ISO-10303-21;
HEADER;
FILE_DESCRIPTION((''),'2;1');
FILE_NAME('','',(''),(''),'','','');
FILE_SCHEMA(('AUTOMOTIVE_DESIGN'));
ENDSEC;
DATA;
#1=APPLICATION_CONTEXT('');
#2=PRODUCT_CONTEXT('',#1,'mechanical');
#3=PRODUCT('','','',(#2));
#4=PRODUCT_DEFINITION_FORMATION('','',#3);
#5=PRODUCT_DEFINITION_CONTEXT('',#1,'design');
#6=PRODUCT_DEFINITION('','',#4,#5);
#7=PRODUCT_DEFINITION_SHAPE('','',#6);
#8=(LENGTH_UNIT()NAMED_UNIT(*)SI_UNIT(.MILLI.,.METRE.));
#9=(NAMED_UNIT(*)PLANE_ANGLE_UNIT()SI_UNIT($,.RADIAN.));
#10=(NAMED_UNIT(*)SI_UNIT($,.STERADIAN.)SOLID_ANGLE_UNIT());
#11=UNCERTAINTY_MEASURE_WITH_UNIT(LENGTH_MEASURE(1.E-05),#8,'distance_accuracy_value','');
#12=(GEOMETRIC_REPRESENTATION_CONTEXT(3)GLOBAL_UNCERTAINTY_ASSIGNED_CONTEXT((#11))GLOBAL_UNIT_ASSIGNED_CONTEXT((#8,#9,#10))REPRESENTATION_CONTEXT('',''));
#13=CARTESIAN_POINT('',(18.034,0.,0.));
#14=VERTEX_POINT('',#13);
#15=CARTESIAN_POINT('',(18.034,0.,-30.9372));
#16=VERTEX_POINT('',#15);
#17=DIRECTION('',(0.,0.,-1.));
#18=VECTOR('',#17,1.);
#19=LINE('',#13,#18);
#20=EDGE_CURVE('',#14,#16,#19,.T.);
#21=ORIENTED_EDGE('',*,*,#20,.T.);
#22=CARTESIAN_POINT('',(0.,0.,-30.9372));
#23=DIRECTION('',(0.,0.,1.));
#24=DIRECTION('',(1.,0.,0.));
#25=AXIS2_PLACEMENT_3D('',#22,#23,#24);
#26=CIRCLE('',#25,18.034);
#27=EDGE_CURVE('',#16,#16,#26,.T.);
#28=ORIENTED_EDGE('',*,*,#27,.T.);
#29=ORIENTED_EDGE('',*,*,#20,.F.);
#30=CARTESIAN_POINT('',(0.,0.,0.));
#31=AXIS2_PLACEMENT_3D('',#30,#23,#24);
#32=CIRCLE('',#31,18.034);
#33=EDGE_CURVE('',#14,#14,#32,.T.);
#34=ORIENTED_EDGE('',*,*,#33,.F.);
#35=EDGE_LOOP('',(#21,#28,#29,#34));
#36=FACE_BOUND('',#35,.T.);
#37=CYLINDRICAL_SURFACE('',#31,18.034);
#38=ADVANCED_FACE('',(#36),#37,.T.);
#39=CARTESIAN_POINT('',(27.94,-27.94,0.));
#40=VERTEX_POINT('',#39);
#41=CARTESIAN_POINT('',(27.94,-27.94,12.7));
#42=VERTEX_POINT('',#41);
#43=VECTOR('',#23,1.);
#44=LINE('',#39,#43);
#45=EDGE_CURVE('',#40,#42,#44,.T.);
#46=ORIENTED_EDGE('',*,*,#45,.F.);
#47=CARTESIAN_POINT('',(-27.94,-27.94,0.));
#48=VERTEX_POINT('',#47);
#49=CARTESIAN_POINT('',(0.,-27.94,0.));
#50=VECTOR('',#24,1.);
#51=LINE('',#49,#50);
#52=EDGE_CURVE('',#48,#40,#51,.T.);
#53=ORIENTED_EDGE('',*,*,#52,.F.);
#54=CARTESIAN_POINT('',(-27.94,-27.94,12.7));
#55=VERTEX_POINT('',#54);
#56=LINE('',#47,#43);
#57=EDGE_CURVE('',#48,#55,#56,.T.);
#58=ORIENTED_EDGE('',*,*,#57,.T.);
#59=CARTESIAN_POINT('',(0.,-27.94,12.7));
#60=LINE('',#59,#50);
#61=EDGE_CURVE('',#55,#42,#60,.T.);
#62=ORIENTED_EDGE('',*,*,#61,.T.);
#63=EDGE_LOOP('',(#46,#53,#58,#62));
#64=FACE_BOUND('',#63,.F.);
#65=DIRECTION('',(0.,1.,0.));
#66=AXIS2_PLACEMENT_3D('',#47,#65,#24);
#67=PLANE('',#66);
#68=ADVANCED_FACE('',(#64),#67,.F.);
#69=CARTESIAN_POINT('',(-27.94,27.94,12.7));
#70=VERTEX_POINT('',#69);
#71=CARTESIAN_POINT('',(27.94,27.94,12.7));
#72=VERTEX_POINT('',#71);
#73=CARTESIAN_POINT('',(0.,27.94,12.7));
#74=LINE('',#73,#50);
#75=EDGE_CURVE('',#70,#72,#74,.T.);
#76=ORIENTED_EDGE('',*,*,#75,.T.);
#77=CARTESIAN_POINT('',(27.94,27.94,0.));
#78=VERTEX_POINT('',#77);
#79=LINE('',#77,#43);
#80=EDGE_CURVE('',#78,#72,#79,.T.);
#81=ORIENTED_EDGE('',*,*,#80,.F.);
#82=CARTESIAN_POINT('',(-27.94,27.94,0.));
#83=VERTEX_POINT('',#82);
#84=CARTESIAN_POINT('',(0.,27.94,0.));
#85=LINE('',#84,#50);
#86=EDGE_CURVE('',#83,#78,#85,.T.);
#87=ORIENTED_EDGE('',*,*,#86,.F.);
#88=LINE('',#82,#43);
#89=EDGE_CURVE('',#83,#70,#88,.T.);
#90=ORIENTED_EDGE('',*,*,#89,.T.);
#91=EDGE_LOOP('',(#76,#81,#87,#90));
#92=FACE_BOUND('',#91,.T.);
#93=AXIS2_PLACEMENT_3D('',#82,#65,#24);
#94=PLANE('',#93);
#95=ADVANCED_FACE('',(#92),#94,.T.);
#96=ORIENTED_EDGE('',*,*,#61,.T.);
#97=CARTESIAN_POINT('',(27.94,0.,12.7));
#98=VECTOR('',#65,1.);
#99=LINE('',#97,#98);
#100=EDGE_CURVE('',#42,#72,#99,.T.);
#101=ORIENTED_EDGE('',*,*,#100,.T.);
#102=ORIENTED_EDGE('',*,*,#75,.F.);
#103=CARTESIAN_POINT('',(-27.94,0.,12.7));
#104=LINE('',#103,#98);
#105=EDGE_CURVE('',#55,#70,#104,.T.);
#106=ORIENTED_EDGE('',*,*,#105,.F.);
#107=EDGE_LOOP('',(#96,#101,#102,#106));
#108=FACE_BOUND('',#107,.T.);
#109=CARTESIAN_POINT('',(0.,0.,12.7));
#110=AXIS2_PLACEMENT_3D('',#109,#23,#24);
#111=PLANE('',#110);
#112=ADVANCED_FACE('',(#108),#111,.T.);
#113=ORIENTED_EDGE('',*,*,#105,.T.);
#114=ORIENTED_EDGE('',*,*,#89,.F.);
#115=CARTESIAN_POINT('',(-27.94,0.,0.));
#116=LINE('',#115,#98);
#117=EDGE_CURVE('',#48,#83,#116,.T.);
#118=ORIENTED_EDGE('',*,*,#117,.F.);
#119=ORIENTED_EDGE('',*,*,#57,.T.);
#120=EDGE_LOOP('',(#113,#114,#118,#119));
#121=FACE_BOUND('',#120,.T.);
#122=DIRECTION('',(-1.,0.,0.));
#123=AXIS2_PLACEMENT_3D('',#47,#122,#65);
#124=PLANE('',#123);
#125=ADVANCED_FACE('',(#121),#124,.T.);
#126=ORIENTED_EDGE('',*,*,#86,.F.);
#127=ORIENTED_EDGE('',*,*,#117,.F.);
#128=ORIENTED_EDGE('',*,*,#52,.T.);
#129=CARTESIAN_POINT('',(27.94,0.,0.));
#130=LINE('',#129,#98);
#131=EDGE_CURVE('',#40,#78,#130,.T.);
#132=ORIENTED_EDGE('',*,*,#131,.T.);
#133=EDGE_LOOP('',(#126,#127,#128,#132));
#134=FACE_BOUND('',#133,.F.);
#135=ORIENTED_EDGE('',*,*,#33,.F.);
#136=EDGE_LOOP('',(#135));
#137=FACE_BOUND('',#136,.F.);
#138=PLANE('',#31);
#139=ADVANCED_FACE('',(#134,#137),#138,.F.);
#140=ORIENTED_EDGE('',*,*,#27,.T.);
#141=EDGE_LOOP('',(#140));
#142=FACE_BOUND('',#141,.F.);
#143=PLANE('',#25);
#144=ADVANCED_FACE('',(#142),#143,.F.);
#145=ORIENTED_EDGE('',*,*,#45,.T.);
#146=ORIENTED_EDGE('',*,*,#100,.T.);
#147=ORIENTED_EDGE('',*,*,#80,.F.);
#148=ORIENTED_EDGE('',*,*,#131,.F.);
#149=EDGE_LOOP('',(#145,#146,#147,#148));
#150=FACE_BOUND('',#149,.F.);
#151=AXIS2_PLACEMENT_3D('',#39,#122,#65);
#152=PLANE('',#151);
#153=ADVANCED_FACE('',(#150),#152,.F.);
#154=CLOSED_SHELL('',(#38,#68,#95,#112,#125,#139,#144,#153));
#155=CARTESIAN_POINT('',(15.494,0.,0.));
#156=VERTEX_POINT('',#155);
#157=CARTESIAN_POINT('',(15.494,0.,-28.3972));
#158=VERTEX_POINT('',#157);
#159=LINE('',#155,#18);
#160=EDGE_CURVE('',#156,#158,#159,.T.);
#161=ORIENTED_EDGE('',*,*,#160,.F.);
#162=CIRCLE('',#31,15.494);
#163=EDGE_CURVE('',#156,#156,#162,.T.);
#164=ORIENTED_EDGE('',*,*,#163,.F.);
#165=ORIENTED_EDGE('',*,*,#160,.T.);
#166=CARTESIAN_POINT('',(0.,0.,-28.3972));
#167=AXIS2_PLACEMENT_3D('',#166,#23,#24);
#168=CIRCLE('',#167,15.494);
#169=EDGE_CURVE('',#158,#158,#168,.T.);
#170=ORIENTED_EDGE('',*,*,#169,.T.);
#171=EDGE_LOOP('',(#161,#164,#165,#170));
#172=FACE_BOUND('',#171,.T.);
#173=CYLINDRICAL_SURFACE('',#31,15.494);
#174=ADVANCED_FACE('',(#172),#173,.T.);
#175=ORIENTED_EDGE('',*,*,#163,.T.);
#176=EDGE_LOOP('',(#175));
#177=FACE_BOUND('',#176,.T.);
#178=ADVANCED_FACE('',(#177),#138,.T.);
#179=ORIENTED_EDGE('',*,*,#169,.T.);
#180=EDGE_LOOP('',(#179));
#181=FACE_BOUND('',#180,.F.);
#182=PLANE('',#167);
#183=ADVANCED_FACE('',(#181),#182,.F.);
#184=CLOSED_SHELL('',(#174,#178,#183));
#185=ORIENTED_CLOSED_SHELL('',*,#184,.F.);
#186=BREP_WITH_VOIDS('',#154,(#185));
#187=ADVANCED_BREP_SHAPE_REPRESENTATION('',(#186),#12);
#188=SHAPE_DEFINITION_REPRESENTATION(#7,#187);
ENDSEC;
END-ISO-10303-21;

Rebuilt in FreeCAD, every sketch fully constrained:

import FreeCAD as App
import Part
import Sketcher
from FreeCAD import Vector
Q = App.Units.Quantity


def faces_at(feature, points):
    """Names of the faces that lie closest to the given points."""
    faces = feature.Shape.Faces
    near = lambda p: min(range(len(faces)), key=lambda i: faces[i].distToShape(Part.Vertex(*p))[0])
    return sorted({f"Face{near(p) + 1}" for p in points})

doc = App.newDocument("Part")
params = doc.addObject("Spreadsheet::Sheet", "Params")
for row, (alias, value) in enumerate([
    ("sketch1_diameter", "1.42 in"),
    ("pad1_length", "1.218 in"),
    ("thickness_wall", "0.1 in"),
    ("sketch2_width", "2.2 in"),
    ("pad2_length", "0.5 in"),
], start=1):
    params.set(f"A{row}", alias)
    params.set(f"B{row}", "=" + value)
    params.setAlias(f"B{row}", alias)

body = doc.addObject("PartDesign::Body", "Body")

sketch1 = body.newObject("Sketcher::SketchObject", "Sketch")
sketch1.AttachmentSupport = (doc.getObject("XY_Plane"), [""])
sketch1.MapMode = "FlatFace"
sketch1.addGeometry(Part.Circle(Vector(0, 0, 0), Vector(0, 0, 1), 18), False)
sketch1.addConstraint([
    Sketcher.Constraint("Coincident", 0, 3, -1, 1),
    Sketcher.Constraint("Diameter", 0, Q("1.42 in")),
])
sketch1.setExpression("Constraints[1]", "Params.sketch1_diameter")
pad1 = body.newObject("PartDesign::Pad", "Pad")
pad1.Profile = sketch1
pad1.setExpression("Length", "Params.pad1_length")
pad1.Reversed = True
doc.recompute()

thickness = body.newObject("PartDesign::Thickness", "Thickness")
thickness.Base = (pad1, faces_at(pad1, [(0, 0, 0)]))
thickness.setExpression("Value", "Params.thickness_wall")
thickness.Reversed = True
thickness.Join = "Arc"

sketch2 = body.newObject("Sketcher::SketchObject", "Sketch001")
sketch2.AttachmentSupport = (doc.getObject("XY_Plane"), [""])
sketch2.MapMode = "FlatFace"
sketch2.addGeometry([
    Part.LineSegment(Vector(-28, 28, 0), Vector(-28, -28, 0)),
    Part.LineSegment(Vector(-28, -28, 0), Vector(28, -28, 0)),
    Part.LineSegment(Vector(28, -28, 0), Vector(28, 28, 0)),
    Part.LineSegment(Vector(28, 28, 0), Vector(-28, 28, 0)),
], False)
sketch2.addConstraint([
    Sketcher.Constraint("Coincident", 0, 2, 1, 1),
    Sketcher.Constraint("Coincident", 1, 2, 2, 1),
    Sketcher.Constraint("Coincident", 2, 2, 3, 1),
    Sketcher.Constraint("Coincident", 3, 2, 0, 1),
    Sketcher.Constraint("Vertical", 0),
    Sketcher.Constraint("Horizontal", 1),
    Sketcher.Constraint("Vertical", 2),
    Sketcher.Constraint("Horizontal", 3),
    Sketcher.Constraint("Symmetric", 0, 2, 2, 2, -1, 1),
    Sketcher.Constraint("Equal", 3, 0),
    Sketcher.Constraint("DistanceX", 1, 1, 1, 2, Q("2.2 in")),
])
sketch2.setExpression("Constraints[10]", "Params.sketch2_width")
pad2 = body.newObject("PartDesign::Pad", "Pad001")
pad2.Profile = sketch2
pad2.setExpression("Length", "Params.pad2_length")

doc.recompute()
